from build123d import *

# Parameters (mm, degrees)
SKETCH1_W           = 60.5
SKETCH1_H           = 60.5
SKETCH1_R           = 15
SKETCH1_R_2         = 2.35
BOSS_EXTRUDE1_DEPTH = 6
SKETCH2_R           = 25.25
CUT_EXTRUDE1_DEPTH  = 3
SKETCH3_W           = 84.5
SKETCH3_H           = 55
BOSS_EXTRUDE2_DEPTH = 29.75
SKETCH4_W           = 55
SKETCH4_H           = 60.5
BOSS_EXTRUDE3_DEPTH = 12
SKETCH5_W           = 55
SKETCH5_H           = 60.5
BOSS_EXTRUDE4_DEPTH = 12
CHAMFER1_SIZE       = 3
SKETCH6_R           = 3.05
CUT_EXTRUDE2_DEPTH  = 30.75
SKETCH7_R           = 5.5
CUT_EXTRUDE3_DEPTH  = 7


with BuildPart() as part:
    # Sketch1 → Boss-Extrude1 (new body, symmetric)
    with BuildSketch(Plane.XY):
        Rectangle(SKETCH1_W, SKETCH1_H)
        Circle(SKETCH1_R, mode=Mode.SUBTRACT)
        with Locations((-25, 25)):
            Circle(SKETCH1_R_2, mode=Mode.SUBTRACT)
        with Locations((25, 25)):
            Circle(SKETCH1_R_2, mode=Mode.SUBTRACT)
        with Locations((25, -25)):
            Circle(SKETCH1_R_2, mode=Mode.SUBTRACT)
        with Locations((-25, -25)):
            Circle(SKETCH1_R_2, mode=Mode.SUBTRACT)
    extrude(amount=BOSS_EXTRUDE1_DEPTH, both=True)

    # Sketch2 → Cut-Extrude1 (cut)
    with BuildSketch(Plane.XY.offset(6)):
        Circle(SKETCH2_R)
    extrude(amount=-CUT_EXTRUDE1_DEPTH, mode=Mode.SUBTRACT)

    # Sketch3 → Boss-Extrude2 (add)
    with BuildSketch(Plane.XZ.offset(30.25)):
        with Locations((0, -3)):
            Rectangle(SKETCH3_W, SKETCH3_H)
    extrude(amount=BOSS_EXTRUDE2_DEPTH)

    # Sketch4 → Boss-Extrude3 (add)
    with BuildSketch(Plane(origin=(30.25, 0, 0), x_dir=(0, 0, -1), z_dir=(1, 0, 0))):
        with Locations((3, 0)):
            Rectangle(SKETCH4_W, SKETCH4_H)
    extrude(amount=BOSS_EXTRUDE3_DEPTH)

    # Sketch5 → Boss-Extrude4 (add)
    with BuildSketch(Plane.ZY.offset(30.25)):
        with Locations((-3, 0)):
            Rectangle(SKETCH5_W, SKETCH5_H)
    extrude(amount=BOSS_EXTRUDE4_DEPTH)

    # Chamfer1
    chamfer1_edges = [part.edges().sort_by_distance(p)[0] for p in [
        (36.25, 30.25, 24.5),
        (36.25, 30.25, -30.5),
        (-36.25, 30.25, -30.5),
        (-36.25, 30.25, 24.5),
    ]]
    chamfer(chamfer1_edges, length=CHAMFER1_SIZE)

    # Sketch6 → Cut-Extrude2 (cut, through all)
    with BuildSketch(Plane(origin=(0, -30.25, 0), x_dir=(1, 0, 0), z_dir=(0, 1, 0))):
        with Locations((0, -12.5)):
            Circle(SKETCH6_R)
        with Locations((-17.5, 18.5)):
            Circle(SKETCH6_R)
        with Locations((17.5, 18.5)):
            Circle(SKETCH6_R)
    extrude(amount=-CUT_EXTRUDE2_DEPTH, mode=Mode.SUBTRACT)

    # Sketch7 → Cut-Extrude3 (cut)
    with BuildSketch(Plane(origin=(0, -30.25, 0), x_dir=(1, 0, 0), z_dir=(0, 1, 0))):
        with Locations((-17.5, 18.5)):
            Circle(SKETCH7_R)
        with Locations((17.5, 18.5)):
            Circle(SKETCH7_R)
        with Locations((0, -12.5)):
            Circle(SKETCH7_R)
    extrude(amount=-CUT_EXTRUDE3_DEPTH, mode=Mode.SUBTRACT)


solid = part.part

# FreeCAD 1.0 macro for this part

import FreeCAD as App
import Part
import Sketcher


def edges_at(feature, points):
    """Names of the edges that pass closest to the given points."""
    edges = feature.Shape.Edges
    near = lambda p: min(range(len(edges)), key=lambda i: edges[i].distToShape(Part.Vertex(*p))[0])
    return sorted({f"Edge{near(p) + 1}" for p in points})


def add_polygon(sketch, points):
    """Adds a closed chain of lines whose ends are joined by coincident constraints."""
    first, n = sketch.GeometryCount, len(points)
    for a, b in zip(points, points[1:] + points[:1]):
        sketch.addGeometry(Part.LineSegment(App.Vector(*a, 0), App.Vector(*b, 0)), False)
    for i in range(n):
        sketch.addConstraint(Sketcher.Constraint("Coincident", first + i, 2, first + (i + 1) % n, 1))

doc = App.newDocument("Part")
params = doc.addObject("Spreadsheet::Sheet", "Params")
for row, (alias, value) in enumerate([
    ("sketch1_diameter", "30 mm"),
    ("sketch1_diameter2", "4.7 mm"),
    ("sketch1_width", "60.5 mm"),
    ("pad1_length", "12 mm"),
    ("sketch2_diameter", "50.5 mm"),
    ("pocket1_length", "3 mm"),
    ("sketch3_height", "55 mm"),
    ("sketch3_width", "84.5 mm"),
    ("pad2_length", "29.75 mm"),
    ("sketch4_height", "55 mm"),
    ("sketch4_width", "60.5 mm"),
    ("pad3_length", "12 mm"),
    ("sketch5_height", "55 mm"),
    ("sketch5_width", "60.5 mm"),
    ("pad4_length", "12 mm"),
    ("chamfer_size", "3 mm"),
    ("sketch6_diameter", "6.1 mm"),
    ("sketch7_diameter", "11 mm"),
    ("pocket3_length", "7 mm"),
], start=1):
    params.set(f"A{row}", alias)
    params.set(f"B{row}", "=" + value)
    params.setAlias(f"B{row}", alias)

body = doc.addObject("PartDesign::Body", "Body")

# Sketch on XY plane
sketch1 = body.newObject("Sketcher::SketchObject", "Sketch")
sketch1.AttachmentSupport = (doc.getObject("XY_Plane"), [""])
sketch1.MapMode = "FlatFace"
add_polygon(sketch1, [(-30.2, 30.2), (-30.2, -30.2), (30.2, -30.2), (30.2, 30.2)])  # lines 0-3
sketch1.addGeometry(Part.Circle(App.Vector(-25, -25, 0), App.Vector(0, 0, 1), 2.4), False)  # 4
sketch1.addGeometry(Part.Circle(App.Vector(25, -25, 0), App.Vector(0, 0, 1), 2.4), False)  # 5
sketch1.addGeometry(Part.Circle(App.Vector(-25, 25, 0), App.Vector(0, 0, 1), 2.4), False)  # 6
sketch1.addGeometry(Part.Circle(App.Vector(0, 0, 0), App.Vector(0, 0, 1), 15), False)  # 7
sketch1.addGeometry(Part.Circle(App.Vector(25, 25, 0), App.Vector(0, 0, 1), 2.4), False)  # 8
sketch1.addConstraint([
    Sketcher.Constraint("Vertical", 0),
    Sketcher.Constraint("Horizontal", 1),
    Sketcher.Constraint("Vertical", 2),
    Sketcher.Constraint("Horizontal", 3),
    Sketcher.Constraint("Coincident", 7, 3, -1, 1),
    Sketcher.Constraint("Equal", 4, 5),
    Sketcher.Constraint("Equal", 5, 6),
    Sketcher.Constraint("Equal", 6, 8),
    Sketcher.Constraint("Symmetric", 5, 3, 6, 3, -1, 1),
    Sketcher.Constraint("Symmetric", 4, 3, 8, 3, -1, 1),
    Sketcher.Constraint("Symmetric", 0, 2, 2, 2, -1, 1),
    Sketcher.Constraint("Symmetric", 4, 3, 5, 3, -2),
    Sketcher.Constraint("Equal", 3, 0),
    Sketcher.Constraint("Diameter", 7, 30.0),
    Sketcher.Constraint("Diameter", 4, 4.7),
    Sketcher.Constraint("DistanceX", 1, 1, 1, 2, 60.5),
    Sketcher.Constraint("DistanceX", 4, 3, -1, 1, 25.0),
    Sketcher.Constraint("DistanceY", 4, 3, -1, 1, 25.0),
])
sketch1.setExpression("Constraints[17]", "Params.sketch1_diameter")
sketch1.setExpression("Constraints[18]", "Params.sketch1_diameter2")
sketch1.setExpression("Constraints[19]", "Params.sketch1_width")
pad1 = body.newObject("PartDesign::Pad", "Pad")
pad1.Profile = sketch1
pad1.setExpression("Length", "Params.pad1_length")
pad1.Midplane = True

# Sketch on XY plane
sketch2 = body.newObject("Sketcher::SketchObject", "Sketch001")
sketch2.AttachmentSupport = (doc.getObject("XY_Plane"), [""])
sketch2.MapMode = "FlatFace"
sketch2.AttachmentOffset = App.Placement(App.Vector(0, 0, 6), App.Rotation())
sketch2.addGeometry(Part.Circle(App.Vector(0, 0, 0), App.Vector(0, 0, 1), 25), False)
sketch2.addConstraint([
    Sketcher.Constraint("Coincident", 0, 3, -1, 1),
    Sketcher.Constraint("Diameter", 0, 50.5),
])
sketch2.setExpression("Constraints[1]", "Params.sketch2_diameter")
pocket1 = body.newObject("PartDesign::Pocket", "Pocket")
pocket1.Profile = sketch2
pocket1.setExpression("Length", "Params.pocket1_length")

# Sketch on XZ plane
sketch3 = body.newObject("Sketcher::SketchObject", "Sketch002")
sketch3.AttachmentSupport = (doc.getObject("XZ_Plane"), [""])
sketch3.MapMode = "FlatFace"
sketch3.AttachmentOffset = App.Placement(App.Vector(0, 0, 30.25), App.Rotation())
add_polygon(sketch3, [(-42, 24), (-42, -30), (42, -30), (42, 24)])  # lines 0-3
sketch3.addConstraint([
    Sketcher.Constraint("Vertical", 0),
    Sketcher.Constraint("Horizontal", 1),
    Sketcher.Constraint("Vertical", 2),
    Sketcher.Constraint("Horizontal", 3),
    Sketcher.Constraint("DistanceY", 0, 2, 0, 1, 55.0),
    Sketcher.Constraint("DistanceX", 1, 1, 1, 2, 84.5),
    Sketcher.Constraint("DistanceY", 0, 2, -1, 1, 30.5),
    Sketcher.Constraint("DistanceX", 0, 2, -1, 1, 42.25),
])
sketch3.setExpression("Constraints[8]", "Params.sketch3_height")
sketch3.setExpression("Constraints[9]", "Params.sketch3_width")
pad2 = body.newObject("PartDesign::Pad", "Pad001")
pad2.Profile = sketch3
pad2.setExpression("Length", "Params.pad2_length")

# Sketch on YZ plane
sketch4 = body.newObject("Sketcher::SketchObject", "Sketch003")
sketch4.AttachmentSupport = (doc.getObject("YZ_Plane"), [""])
sketch4.MapMode = "FlatFace"
sketch4.AttachmentOffset = App.Placement(App.Vector(0, 0, 30.25), App.Rotation())
add_polygon(sketch4, [(30, 24), (-30, 24), (-30, -30), (30, -30)])  # lines 0-3
sketch4.addConstraint([
    Sketcher.Constraint("Horizontal", 0),
    Sketcher.Constraint("Vertical", 1),
    Sketcher.Constraint("Horizontal", 2),
    Sketcher.Constraint("Vertical", 3),
    Sketcher.Constraint("DistanceY", 1, 2, 1, 1, 55.0),
    Sketcher.Constraint("DistanceX", 0, 2, 0, 1, 60.5),
    Sketcher.Constraint("DistanceY", -1, 1, 0, 2, 24.5),
    Sketcher.Constraint("DistanceX", 0, 2, -1, 1, 30.25),
])
sketch4.setExpression("Constraints[8]", "Params.sketch4_height")
sketch4.setExpression("Constraints[9]", "Params.sketch4_width")
pad3 = body.newObject("PartDesign::Pad", "Pad002")
pad3.Profile = sketch4
pad3.setExpression("Length", "Params.pad3_length")

# Sketch on YZ plane
sketch5 = body.newObject("Sketcher::SketchObject", "Sketch004")
sketch5.AttachmentSupport = (doc.getObject("YZ_Plane"), [""])
sketch5.MapMode = "FlatFace"
sketch5.AttachmentOffset = App.Placement(App.Vector(0, 0, -30.25), App.Rotation())
add_polygon(sketch5, [(30, -30), (-30, -30), (-30, 24), (30, 24)])  # lines 0-3
sketch5.addConstraint([
    Sketcher.Constraint("Horizontal", 0),
    Sketcher.Constraint("Vertical", 1),
    Sketcher.Constraint("Horizontal", 2),
    Sketcher.Constraint("Vertical", 3),
    Sketcher.Constraint("DistanceY", 1, 1, 1, 2, 55.0),
    Sketcher.Constraint("DistanceX", 0, 2, 0, 1, 60.5),
    Sketcher.Constraint("DistanceY", 0, 2, -1, 1, 30.5),
    Sketcher.Constraint("DistanceX", 0, 2, -1, 1, 30.25),
])
sketch5.setExpression("Constraints[8]", "Params.sketch5_height")
sketch5.setExpression("Constraints[9]", "Params.sketch5_width")
pad4 = body.newObject("PartDesign::Pad", "Pad003")
pad4.Profile = sketch5
pad4.setExpression("Length", "Params.pad4_length")
pad4.Reversed = True
doc.recompute()

chamfer = body.newObject("PartDesign::Chamfer", "Chamfer")
chamfer.Base = (pad4, edges_at(pad4, [
    (36.25, 30.25, 24.5),
    (36.25, 30.25, -30.5),
    (-36.25, 30.25, -30.5),
    (-36.25, 30.25, 24.5),
]))
chamfer.setExpression("Size", "Params.chamfer_size")

# Sketch on XZ plane
sketch6 = body.newObject("Sketcher::SketchObject", "Sketch005")
sketch6.AttachmentSupport = (doc.getObject("XZ_Plane"), [""])
sketch6.MapMode = "FlatFace"
sketch6.AttachmentOffset = App.Placement(App.Vector(0, 0, 30.25), App.Rotation())
sketch6.addGeometry([
    Part.Circle(App.Vector(0, 12.5, 0), App.Vector(0, 0, 1), 3),
    Part.Circle(App.Vector(-17.5, -18.5, 0), App.Vector(0, 0, 1), 3),
    Part.Circle(App.Vector(17.5, -18.5, 0), App.Vector(0, 0, 1), 3),
], False)
sketch6.addConstraint([
    Sketcher.Constraint("Equal", 0, 1),
    Sketcher.Constraint("Equal", 1, 2),
    Sketcher.Constraint("Symmetric", 1, 3, 2, 3, -2),
    Sketcher.Constraint("PointOnObject", 0, 3, -2),
    Sketcher.Constraint("Diameter", 0, 6.1),
    Sketcher.Constraint("DistanceY", 1, 3, 0, 3, 31.0),
    Sketcher.Constraint("DistanceX", 1, 3, 2, 3, 35.0),
    Sketcher.Constraint("DistanceY", -1, 1, 0, 3, 12.5),
])
sketch6.setExpression("Constraints[4]", "Params.sketch6_diameter")
pocket2 = body.newObject("PartDesign::Pocket", "Pocket001")
pocket2.Profile = sketch6
pocket2.Type = "ThroughAll"
pocket2.Reversed = True

# Sketch on XZ plane
sketch7 = body.newObject("Sketcher::SketchObject", "Sketch006")
sketch7.AttachmentSupport = (doc.getObject("XZ_Plane"), [""])
sketch7.MapMode = "FlatFace"
sketch7.AttachmentOffset = App.Placement(App.Vector(0, 0, 30.25), App.Rotation())
sketch7.addGeometry([
    Part.Circle(App.Vector(-18, -18, 0), App.Vector(0, 0, 1), 6),
    Part.Circle(App.Vector(18, -18, 0), App.Vector(0, 0, 1), 6),
    Part.Circle(App.Vector(0, 12, 0), App.Vector(0, 0, 1), 6),
], False)
sketch7.addConstraint([
    Sketcher.Constraint("Equal", 0, 1),
    Sketcher.Constraint("Equal", 1, 2),
    Sketcher.Constraint("Symmetric", 0, 3, 1, 3, -2),
    Sketcher.Constraint("PointOnObject", 2, 3, -2),
    Sketcher.Constraint("Diameter", 0, 11.0),
    Sketcher.Constraint("DistanceX", 0, 3, 1, 3, 35.0),
    Sketcher.Constraint("DistanceY", 0, 3, 2, 3, 31.0),
    Sketcher.Constraint("DistanceY", 0, 3, -1, 1, 18.5),
])
sketch7.setExpression("Constraints[4]", "Params.sketch7_diameter")
pocket3 = body.newObject("PartDesign::Pocket", "Pocket002")
pocket3.Profile = sketch7
pocket3.setExpression("Length", "Params.pocket3_length")
pocket3.Reversed = True

doc.recompute()
